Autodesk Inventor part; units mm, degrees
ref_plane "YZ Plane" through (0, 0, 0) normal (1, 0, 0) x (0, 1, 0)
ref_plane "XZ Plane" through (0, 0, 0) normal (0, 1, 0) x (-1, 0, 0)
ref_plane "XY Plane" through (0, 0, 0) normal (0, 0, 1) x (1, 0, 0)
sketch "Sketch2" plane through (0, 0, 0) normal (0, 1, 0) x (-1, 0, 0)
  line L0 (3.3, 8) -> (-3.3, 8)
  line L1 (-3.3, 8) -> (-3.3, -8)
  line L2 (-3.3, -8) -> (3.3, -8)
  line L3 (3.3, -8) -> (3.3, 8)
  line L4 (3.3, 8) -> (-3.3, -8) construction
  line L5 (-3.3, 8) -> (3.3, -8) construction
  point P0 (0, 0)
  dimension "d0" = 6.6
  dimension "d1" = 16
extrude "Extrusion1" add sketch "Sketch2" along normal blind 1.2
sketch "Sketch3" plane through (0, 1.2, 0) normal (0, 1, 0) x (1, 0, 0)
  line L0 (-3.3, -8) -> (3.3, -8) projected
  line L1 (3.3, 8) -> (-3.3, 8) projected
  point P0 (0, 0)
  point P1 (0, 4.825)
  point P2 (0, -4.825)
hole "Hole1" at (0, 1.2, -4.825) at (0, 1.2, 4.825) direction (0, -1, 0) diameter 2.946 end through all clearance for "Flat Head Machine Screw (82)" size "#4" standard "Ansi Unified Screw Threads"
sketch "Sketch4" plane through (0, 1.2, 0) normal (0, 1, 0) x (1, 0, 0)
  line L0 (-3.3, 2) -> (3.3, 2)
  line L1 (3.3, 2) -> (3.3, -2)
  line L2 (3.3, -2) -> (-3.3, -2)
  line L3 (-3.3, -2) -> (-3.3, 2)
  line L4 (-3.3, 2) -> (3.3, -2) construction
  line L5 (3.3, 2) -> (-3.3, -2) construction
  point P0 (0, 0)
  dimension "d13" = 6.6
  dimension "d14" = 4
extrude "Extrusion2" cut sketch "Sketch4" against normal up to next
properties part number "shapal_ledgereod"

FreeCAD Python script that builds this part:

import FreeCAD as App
import Part
import Sketcher
from FreeCAD import Vector
Q = App.Units.Quantity


def add_polygon(sketch, points):
    """Adds a closed chain of lines whose ends are joined by coincident constraints."""
    first, n = sketch.GeometryCount, len(points)
    for a, b in zip(points, points[1:] + points[:1]):
        sketch.addGeometry(Part.LineSegment(App.Vector(*a, 0), App.Vector(*b, 0)), False)
    for i in range(n):
        sketch.addConstraint(Sketcher.Constraint("Coincident", first + i, 2, first + (i + 1) % n, 1))

doc = App.newDocument("Part")
body = doc.addObject("PartDesign::Body", "Body")
body.AllowCompound = True

sketch1 = doc.addObject("Sketcher::SketchObject", "Sketch")
body.addObject(sketch1)
sketch1.AttachmentSupport = (doc.XZ_Plane, [""])
sketch1.MapMode = "FlatFace"
add_polygon(sketch1, [(-3, -8), (-3, 8), (3, 8), (3, -8)])
sketch1.addConstraint([
    Sketcher.Constraint("Vertical", 0),
    Sketcher.Constraint("Horizontal", 1),
    Sketcher.Constraint("Vertical", 2),
    Sketcher.Constraint("Horizontal", 3),
    Sketcher.Constraint("Symmetric", 0, 2, 2, 2, -1, 1),
    Sketcher.Constraint("DistanceY", 0, 1, 0, 2, Q("16 mm")),
    Sketcher.Constraint("DistanceX", 1, 1, 1, 2, Q("6.6 mm")),
])
pad1 = doc.addObject("PartDesign::Pad", "Pad")
body.addObject(pad1)
pad1.Profile = sketch1
pad1.Length = 1.2
pad1.Reversed = True

sketch2 = doc.addObject("Sketcher::SketchObject", "Sketch001")
body.addObject(sketch2)
sketch2.AttachmentSupport = (doc.XZ_Plane, [""])
sketch2.MapMode = "FlatFace"
sketch2.AttachmentOffset = App.Placement(Vector(0, 0, -1.2), App.Rotation())
sketch2.addGeometry([
    Part.Circle(Vector(0, -4.8, 0), Vector(0, 0, 1), 1.5),
    Part.Circle(Vector(0, 4.8, 0), Vector(0, 0, 1), 1.5),
], False)
sketch2.addConstraint([
    Sketcher.Constraint("Equal", 0, 1),
    Sketcher.Constraint("Symmetric", 0, 3, 1, 3, -1, 1),
    Sketcher.Constraint("PointOnObject", 0, 3, -2),
    Sketcher.Constraint("Diameter", 0, Q("2.946 mm")),
    Sketcher.Constraint("DistanceY", 0, 3, 1, 3, Q("9.65 mm")),
])
doc.recompute()
hole = doc.addObject("PartDesign::Hole", "Hole")
body.addObject(hole)
hole.Profile = sketch2
hole.ThreadType = "None"
hole.Diameter = 2.946
hole.DepthType = "ThroughAll"
hole.Reversed = True

sketch3 = doc.addObject("Sketcher::SketchObject", "Sketch002")
body.addObject(sketch3)
sketch3.AttachmentSupport = (doc.XZ_Plane, [""])
sketch3.MapMode = "FlatFace"
sketch3.AttachmentOffset = App.Placement(Vector(0, 0, -1.2), App.Rotation())
add_polygon(sketch3, [(3.3, -2), (-3.3, -2), (-3.3, 2), (3.3, 2)])
sketch3.addConstraint([
    Sketcher.Constraint("Horizontal", 0),
    Sketcher.Constraint("Vertical", 1),
    Sketcher.Constraint("Horizontal", 2),
    Sketcher.Constraint("Vertical", 3),
    Sketcher.Constraint("Symmetric", 0, 2, 2, 2, -1, 1),
    Sketcher.Constraint("DistanceY", 1, 1, 1, 2, Q("4 mm")),
    Sketcher.Constraint("DistanceX", 0, 2, 0, 1, Q("6.6 mm")),
])
pocket1 = doc.addObject("PartDesign::Pocket", "Pocket")
body.addObject(pocket1)
pocket1.Profile = sketch3
pocket1.Type = "UpToFirst"
pocket1.Reversed = True

doc.recompute()
